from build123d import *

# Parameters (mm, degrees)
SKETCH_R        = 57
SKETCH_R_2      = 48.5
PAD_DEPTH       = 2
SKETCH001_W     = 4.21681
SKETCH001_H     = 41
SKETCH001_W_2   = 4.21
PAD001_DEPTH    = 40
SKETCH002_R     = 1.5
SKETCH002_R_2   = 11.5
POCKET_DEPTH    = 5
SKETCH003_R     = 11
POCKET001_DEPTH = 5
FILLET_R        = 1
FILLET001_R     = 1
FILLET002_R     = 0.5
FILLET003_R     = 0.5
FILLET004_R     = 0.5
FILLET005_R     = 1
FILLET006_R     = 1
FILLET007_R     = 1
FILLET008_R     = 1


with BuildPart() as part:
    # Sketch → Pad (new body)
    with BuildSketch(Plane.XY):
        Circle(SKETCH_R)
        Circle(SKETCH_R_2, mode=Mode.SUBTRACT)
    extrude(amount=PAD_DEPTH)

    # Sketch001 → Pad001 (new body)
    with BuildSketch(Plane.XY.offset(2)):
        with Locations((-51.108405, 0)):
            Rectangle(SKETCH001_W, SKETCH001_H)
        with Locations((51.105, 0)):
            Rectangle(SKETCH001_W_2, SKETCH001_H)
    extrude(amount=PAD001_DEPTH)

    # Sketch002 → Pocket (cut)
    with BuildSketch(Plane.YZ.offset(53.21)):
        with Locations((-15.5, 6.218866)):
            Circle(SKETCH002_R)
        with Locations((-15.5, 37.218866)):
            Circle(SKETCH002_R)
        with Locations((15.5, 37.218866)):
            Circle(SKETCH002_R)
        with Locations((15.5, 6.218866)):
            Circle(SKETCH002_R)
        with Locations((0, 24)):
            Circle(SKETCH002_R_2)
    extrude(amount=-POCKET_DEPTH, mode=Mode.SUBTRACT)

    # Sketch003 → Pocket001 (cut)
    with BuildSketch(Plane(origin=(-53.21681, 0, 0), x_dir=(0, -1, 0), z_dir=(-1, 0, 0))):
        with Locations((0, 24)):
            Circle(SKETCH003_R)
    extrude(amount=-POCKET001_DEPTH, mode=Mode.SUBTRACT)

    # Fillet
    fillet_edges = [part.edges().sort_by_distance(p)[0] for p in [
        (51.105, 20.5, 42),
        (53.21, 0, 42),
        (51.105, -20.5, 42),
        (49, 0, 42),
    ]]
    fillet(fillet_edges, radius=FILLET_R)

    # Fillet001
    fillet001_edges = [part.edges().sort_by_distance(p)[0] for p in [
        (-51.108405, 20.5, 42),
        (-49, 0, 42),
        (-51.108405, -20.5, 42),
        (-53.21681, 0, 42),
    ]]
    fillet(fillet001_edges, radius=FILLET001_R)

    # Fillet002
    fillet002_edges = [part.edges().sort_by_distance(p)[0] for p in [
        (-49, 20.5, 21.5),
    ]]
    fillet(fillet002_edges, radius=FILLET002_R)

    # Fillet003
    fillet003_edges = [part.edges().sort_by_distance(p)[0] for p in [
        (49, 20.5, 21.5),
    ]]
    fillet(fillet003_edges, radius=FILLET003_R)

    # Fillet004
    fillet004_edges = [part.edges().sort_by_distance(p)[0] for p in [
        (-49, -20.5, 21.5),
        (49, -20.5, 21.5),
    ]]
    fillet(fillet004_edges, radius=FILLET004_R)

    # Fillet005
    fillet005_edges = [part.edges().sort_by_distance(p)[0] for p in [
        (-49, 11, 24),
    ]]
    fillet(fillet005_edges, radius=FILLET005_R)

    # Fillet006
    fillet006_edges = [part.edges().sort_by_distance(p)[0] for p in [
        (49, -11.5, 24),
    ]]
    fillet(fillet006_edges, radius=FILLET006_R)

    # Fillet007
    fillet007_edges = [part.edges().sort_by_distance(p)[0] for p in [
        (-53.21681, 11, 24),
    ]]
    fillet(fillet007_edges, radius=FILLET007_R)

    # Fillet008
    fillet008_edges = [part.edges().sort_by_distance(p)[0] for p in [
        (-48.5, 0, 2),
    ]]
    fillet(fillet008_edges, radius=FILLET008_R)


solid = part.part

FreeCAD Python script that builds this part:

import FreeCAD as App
import Part
import Sketcher
from FreeCAD import Vector
Q = App.Units.Quantity


def edges_at(feature, points):
    """Names of the edges that pass closest to the given points."""
    edges = feature.Shape.Edges
    near = lambda p: min(range(len(edges)), key=lambda i: edges[i].distToShape(Part.Vertex(*p))[0])
    return sorted({f"Edge{near(p) + 1}" for p in points})

doc = App.newDocument("Part")
body = doc.addObject("PartDesign::Body", "Body")

# Sketch on XY plane
sketch1 = body.newObject("Sketcher::SketchObject", "Sketch")
sketch1.AttachmentSupport = (doc.getObject("XY_Plane"), [""])
sketch1.MapMode = "FlatFace"
sketch1.addGeometry(Part.Circle(Vector(0, 0, 0), Vector(0, 0, 1), 57), False)
sketch1.addGeometry(Part.Circle(Vector(0, 0, 0), Vector(0, 0, 1), 48), False)
sketch1.addConstraint(Sketcher.Constraint("Coincident", 0, 3, -1, 1))
sketch1.addConstraint(Sketcher.Constraint("Coincident", 1, 3, -1, 1))
sketch1.addConstraint(Sketcher.Constraint("Diameter", 0, Q("114 mm")))
sketch1.addConstraint(Sketcher.Constraint("Diameter", 1, Q("97 mm")))
pad1 = body.newObject("PartDesign::Pad", "Pad")
pad1.Profile = sketch1
pad1.Length = 2

# Sketch on XY plane
sketch2 = body.newObject("Sketcher::SketchObject", "Sketch001")
sketch2.AttachmentSupport = (doc.getObject("XY_Plane"), [""])
sketch2.MapMode = "FlatFace"
sketch2.AttachmentOffset = App.Placement(Vector(0, 0, 2), App.Rotation())
sketch2.addGeometry(Part.LineSegment(Vector(-53.2, 20.5, 0), Vector(-53.2, -20.5, 0)), False)
sketch2.addGeometry(Part.LineSegment(Vector(-53.2, -20.5, 0), Vector(-49, -20.5, 0)), False)
sketch2.addGeometry(Part.LineSegment(Vector(-49, -20.5, 0), Vector(-49, 20.5, 0)), False)
sketch2.addGeometry(Part.LineSegment(Vector(-49, 20.5, 0), Vector(-53.2, 20.5, 0)), False)
sketch2.addGeometry(Part.LineSegment(Vector(49, 20.5, 0), Vector(49, -20.5, 0)), False)
sketch2.addGeometry(Part.LineSegment(Vector(49, -20.5, 0), Vector(53.2, -20.5, 0)), False)
sketch2.addGeometry(Part.LineSegment(Vector(53.2, -20.5, 0), Vector(53.2, 20.5, 0)), False)
sketch2.addGeometry(Part.LineSegment(Vector(53.2, 20.5, 0), Vector(49, 20.5, 0)), False)
sketch2.addConstraint(Sketcher.Constraint("Coincident", 0, 2, 1, 1))
sketch2.addConstraint(Sketcher.Constraint("Coincident", 1, 2, 2, 1))
sketch2.addConstraint(Sketcher.Constraint("Coincident", 2, 2, 3, 1))
sketch2.addConstraint(Sketcher.Constraint("Coincident", 3, 2, 0, 1))
sketch2.addConstraint(Sketcher.Constraint("Coincident", 4, 2, 5, 1))
sketch2.addConstraint(Sketcher.Constraint("Coincident", 5, 2, 6, 1))
sketch2.addConstraint(Sketcher.Constraint("Coincident", 6, 2, 7, 1))
sketch2.addConstraint(Sketcher.Constraint("Coincident", 7, 2, 4, 1))
sketch2.addConstraint(Sketcher.Constraint("Vertical", 0))
sketch2.addConstraint(Sketcher.Constraint("Horizontal", 1))
sketch2.addConstraint(Sketcher.Constraint("Vertical", 2))
sketch2.addConstraint(Sketcher.Constraint("Horizontal", 3))
sketch2.addConstraint(Sketcher.Constraint("Vertical", 4))
sketch2.addConstraint(Sketcher.Constraint("Horizontal", 5))
sketch2.addConstraint(Sketcher.Constraint("Vertical", 6))
sketch2.addConstraint(Sketcher.Constraint("Horizontal", 7))
sketch2.addConstraint(Sketcher.Constraint("Symmetric", 2, 2, 4, 2, -1, 1))
sketch2.addConstraint(Sketcher.Constraint("Horizontal", 1, 2, 4, 2))
sketch2.addConstraint(Sketcher.Constraint("Horizontal", 3, 2, 6, 2))
sketch2.addConstraint(Sketcher.Constraint("DistanceY", 0, 2, 0, 1, Q("41 mm")))
sketch2.addConstraint(Sketcher.Constraint("DistanceX", 1, 2, -1, 1, Q("49 mm")))
sketch2.addConstraint(Sketcher.Constraint("DistanceX", 5, 1, 5, 2, Q("4.21 mm")))
sketch2.addConstraint(Sketcher.Constraint("DistanceX", 1, 1, 1, 2, Q("4.21681 mm")))
pad2 = body.newObject("PartDesign::Pad", "Pad001")
pad2.Profile = sketch2
pad2.Length = 40

# Sketch on YZ plane
sketch3 = body.newObject("Sketcher::SketchObject", "Sketch002")
sketch3.AttachmentSupport = (doc.getObject("YZ_Plane"), [""])
sketch3.MapMode = "FlatFace"
sketch3.AttachmentOffset = App.Placement(Vector(0, 0, 53.21), App.Rotation())
sketch3.addGeometry(Part.Circle(Vector(-15.5, 6.2, 0), Vector(0, 0, 1), 1.5), False)
sketch3.addGeometry(Part.Circle(Vector(-15.5, 37.2, 0), Vector(0, 0, 1), 1.5), False)
sketch3.addGeometry(Part.Circle(Vector(15.5, 37.2, 0), Vector(0, 0, 1), 1.5), False)
sketch3.addGeometry(Part.Circle(Vector(15.5, 6.2, 0), Vector(0, 0, 1), 1.5), False)
sketch3.addGeometry(Part.Circle(Vector(0, 24, 0), Vector(0, 0, 1), 11.5), False)
sketch3.addConstraint(Sketcher.Constraint("Equal", 0, 1))
sketch3.addConstraint(Sketcher.Constraint("Equal", 1, 2))
sketch3.addConstraint(Sketcher.Constraint("Equal", 2, 3))
sketch3.addConstraint(Sketcher.Constraint("Symmetric", 1, 3, 2, 3, -2))
sketch3.addConstraint(Sketcher.Constraint("Symmetric", 0, 3, 3, 3, -2))
sketch3.addConstraint(Sketcher.Constraint("PointOnObject", 4, 3, -2))
sketch3.addConstraint(Sketcher.Constraint("Vertical", 0, 3, 1, 3))
sketch3.addConstraint(Sketcher.Constraint("Diameter", 0, Q("3 mm")))
sketch3.addConstraint(Sketcher.Constraint("Diameter", 4, Q("23 mm")))
sketch3.addConstraint(Sketcher.Constraint("DistanceY", -1, 1, 4, 3, Q("24 mm")))
sketch3.addConstraint(Sketcher.Constraint("DistanceY", 0, 3, 1, 3, Q("31 mm")))
sketch3.addConstraint(Sketcher.Constraint("DistanceX", 1, 3, 2, 3, Q("31 mm")))
sketch3.addConstraint(Sketcher.Constraint("DistanceY", -1, 1, 0, 3, Q("6.218866 mm")))
pocket1 = body.newObject("PartDesign::Pocket", "Pocket")
pocket1.Profile = sketch3
pocket1.Length = 5

# Sketch on YZ plane
sketch4 = body.newObject("Sketcher::SketchObject", "Sketch003")
sketch4.AttachmentSupport = (doc.getObject("YZ_Plane"), [""])
sketch4.MapMode = "FlatFace"
sketch4.AttachmentOffset = App.Placement(Vector(0, 0, -53.21681), App.Rotation())
sketch4.addGeometry(Part.Circle(Vector(0, 24, 0), Vector(0, 0, 1), 11), False)
sketch4.addConstraint(Sketcher.Constraint("PointOnObject", 0, 3, -2))
sketch4.addConstraint(Sketcher.Constraint("Diameter", 0, Q("22 mm")))
sketch4.addConstraint(Sketcher.Constraint("DistanceY", -1, 1, 0, 3, Q("24 mm")))
pocket2 = body.newObject("PartDesign::Pocket", "Pocket001")
pocket2.Profile = sketch4
pocket2.Length = 5
pocket2.Reversed = True
doc.recompute()

fillet = body.newObject("PartDesign::Fillet", "Fillet")
fillet.Base = (pocket2, edges_at(pocket2, [
    (51.105, 20.5, 42),
    (53.21, 0, 42),
    (51.105, -20.5, 42),
    (49, 0, 42),
]))
fillet.Radius = 1
doc.recompute()

fillet2 = body.newObject("PartDesign::Fillet", "Fillet001")
fillet2.Base = (fillet, edges_at(fillet, [
    (-51.108, 20.5, 42),
    (-49, 0, 42),
    (-51.108, -20.5, 42),
    (-53.217, 0, 42),
]))
fillet2.Radius = 1
doc.recompute()

fillet3 = body.newObject("PartDesign::Fillet", "Fillet002")
fillet3.Base = (fillet2, edges_at(fillet2, [(-49, 20.5, 21.5)]))
fillet3.Radius = 0.5
doc.recompute()

fillet4 = body.newObject("PartDesign::Fillet", "Fillet003")
fillet4.Base = (fillet3, edges_at(fillet3, [(49, 20.5, 21.5)]))
fillet4.Radius = 0.5
doc.recompute()

fillet5 = body.newObject("PartDesign::Fillet", "Fillet004")
fillet5.Base = (fillet4, edges_at(fillet4, [(-49, -20.5, 21.5), (49, -20.5, 21.5)]))
fillet5.Radius = 0.5
doc.recompute()

fillet6 = body.newObject("PartDesign::Fillet", "Fillet005")
fillet6.Base = (fillet5, edges_at(fillet5, [(-49, 11, 24)]))
fillet6.Radius = 1
doc.recompute()

fillet7 = body.newObject("PartDesign::Fillet", "Fillet006")
fillet7.Base = (fillet6, edges_at(fillet6, [(49, -11.5, 24)]))
fillet7.Radius = 1
doc.recompute()

fillet8 = body.newObject("PartDesign::Fillet", "Fillet007")
fillet8.Base = (fillet7, edges_at(fillet7, [(-53.217, 11, 24)]))
fillet8.Radius = 1
doc.recompute()

fillet9 = body.newObject("PartDesign::Fillet", "Fillet008")
fillet9.Base = (fillet8, edges_at(fillet8, [(-48.5, 0, 2)]))
fillet9.Radius = 1

doc.recompute()
